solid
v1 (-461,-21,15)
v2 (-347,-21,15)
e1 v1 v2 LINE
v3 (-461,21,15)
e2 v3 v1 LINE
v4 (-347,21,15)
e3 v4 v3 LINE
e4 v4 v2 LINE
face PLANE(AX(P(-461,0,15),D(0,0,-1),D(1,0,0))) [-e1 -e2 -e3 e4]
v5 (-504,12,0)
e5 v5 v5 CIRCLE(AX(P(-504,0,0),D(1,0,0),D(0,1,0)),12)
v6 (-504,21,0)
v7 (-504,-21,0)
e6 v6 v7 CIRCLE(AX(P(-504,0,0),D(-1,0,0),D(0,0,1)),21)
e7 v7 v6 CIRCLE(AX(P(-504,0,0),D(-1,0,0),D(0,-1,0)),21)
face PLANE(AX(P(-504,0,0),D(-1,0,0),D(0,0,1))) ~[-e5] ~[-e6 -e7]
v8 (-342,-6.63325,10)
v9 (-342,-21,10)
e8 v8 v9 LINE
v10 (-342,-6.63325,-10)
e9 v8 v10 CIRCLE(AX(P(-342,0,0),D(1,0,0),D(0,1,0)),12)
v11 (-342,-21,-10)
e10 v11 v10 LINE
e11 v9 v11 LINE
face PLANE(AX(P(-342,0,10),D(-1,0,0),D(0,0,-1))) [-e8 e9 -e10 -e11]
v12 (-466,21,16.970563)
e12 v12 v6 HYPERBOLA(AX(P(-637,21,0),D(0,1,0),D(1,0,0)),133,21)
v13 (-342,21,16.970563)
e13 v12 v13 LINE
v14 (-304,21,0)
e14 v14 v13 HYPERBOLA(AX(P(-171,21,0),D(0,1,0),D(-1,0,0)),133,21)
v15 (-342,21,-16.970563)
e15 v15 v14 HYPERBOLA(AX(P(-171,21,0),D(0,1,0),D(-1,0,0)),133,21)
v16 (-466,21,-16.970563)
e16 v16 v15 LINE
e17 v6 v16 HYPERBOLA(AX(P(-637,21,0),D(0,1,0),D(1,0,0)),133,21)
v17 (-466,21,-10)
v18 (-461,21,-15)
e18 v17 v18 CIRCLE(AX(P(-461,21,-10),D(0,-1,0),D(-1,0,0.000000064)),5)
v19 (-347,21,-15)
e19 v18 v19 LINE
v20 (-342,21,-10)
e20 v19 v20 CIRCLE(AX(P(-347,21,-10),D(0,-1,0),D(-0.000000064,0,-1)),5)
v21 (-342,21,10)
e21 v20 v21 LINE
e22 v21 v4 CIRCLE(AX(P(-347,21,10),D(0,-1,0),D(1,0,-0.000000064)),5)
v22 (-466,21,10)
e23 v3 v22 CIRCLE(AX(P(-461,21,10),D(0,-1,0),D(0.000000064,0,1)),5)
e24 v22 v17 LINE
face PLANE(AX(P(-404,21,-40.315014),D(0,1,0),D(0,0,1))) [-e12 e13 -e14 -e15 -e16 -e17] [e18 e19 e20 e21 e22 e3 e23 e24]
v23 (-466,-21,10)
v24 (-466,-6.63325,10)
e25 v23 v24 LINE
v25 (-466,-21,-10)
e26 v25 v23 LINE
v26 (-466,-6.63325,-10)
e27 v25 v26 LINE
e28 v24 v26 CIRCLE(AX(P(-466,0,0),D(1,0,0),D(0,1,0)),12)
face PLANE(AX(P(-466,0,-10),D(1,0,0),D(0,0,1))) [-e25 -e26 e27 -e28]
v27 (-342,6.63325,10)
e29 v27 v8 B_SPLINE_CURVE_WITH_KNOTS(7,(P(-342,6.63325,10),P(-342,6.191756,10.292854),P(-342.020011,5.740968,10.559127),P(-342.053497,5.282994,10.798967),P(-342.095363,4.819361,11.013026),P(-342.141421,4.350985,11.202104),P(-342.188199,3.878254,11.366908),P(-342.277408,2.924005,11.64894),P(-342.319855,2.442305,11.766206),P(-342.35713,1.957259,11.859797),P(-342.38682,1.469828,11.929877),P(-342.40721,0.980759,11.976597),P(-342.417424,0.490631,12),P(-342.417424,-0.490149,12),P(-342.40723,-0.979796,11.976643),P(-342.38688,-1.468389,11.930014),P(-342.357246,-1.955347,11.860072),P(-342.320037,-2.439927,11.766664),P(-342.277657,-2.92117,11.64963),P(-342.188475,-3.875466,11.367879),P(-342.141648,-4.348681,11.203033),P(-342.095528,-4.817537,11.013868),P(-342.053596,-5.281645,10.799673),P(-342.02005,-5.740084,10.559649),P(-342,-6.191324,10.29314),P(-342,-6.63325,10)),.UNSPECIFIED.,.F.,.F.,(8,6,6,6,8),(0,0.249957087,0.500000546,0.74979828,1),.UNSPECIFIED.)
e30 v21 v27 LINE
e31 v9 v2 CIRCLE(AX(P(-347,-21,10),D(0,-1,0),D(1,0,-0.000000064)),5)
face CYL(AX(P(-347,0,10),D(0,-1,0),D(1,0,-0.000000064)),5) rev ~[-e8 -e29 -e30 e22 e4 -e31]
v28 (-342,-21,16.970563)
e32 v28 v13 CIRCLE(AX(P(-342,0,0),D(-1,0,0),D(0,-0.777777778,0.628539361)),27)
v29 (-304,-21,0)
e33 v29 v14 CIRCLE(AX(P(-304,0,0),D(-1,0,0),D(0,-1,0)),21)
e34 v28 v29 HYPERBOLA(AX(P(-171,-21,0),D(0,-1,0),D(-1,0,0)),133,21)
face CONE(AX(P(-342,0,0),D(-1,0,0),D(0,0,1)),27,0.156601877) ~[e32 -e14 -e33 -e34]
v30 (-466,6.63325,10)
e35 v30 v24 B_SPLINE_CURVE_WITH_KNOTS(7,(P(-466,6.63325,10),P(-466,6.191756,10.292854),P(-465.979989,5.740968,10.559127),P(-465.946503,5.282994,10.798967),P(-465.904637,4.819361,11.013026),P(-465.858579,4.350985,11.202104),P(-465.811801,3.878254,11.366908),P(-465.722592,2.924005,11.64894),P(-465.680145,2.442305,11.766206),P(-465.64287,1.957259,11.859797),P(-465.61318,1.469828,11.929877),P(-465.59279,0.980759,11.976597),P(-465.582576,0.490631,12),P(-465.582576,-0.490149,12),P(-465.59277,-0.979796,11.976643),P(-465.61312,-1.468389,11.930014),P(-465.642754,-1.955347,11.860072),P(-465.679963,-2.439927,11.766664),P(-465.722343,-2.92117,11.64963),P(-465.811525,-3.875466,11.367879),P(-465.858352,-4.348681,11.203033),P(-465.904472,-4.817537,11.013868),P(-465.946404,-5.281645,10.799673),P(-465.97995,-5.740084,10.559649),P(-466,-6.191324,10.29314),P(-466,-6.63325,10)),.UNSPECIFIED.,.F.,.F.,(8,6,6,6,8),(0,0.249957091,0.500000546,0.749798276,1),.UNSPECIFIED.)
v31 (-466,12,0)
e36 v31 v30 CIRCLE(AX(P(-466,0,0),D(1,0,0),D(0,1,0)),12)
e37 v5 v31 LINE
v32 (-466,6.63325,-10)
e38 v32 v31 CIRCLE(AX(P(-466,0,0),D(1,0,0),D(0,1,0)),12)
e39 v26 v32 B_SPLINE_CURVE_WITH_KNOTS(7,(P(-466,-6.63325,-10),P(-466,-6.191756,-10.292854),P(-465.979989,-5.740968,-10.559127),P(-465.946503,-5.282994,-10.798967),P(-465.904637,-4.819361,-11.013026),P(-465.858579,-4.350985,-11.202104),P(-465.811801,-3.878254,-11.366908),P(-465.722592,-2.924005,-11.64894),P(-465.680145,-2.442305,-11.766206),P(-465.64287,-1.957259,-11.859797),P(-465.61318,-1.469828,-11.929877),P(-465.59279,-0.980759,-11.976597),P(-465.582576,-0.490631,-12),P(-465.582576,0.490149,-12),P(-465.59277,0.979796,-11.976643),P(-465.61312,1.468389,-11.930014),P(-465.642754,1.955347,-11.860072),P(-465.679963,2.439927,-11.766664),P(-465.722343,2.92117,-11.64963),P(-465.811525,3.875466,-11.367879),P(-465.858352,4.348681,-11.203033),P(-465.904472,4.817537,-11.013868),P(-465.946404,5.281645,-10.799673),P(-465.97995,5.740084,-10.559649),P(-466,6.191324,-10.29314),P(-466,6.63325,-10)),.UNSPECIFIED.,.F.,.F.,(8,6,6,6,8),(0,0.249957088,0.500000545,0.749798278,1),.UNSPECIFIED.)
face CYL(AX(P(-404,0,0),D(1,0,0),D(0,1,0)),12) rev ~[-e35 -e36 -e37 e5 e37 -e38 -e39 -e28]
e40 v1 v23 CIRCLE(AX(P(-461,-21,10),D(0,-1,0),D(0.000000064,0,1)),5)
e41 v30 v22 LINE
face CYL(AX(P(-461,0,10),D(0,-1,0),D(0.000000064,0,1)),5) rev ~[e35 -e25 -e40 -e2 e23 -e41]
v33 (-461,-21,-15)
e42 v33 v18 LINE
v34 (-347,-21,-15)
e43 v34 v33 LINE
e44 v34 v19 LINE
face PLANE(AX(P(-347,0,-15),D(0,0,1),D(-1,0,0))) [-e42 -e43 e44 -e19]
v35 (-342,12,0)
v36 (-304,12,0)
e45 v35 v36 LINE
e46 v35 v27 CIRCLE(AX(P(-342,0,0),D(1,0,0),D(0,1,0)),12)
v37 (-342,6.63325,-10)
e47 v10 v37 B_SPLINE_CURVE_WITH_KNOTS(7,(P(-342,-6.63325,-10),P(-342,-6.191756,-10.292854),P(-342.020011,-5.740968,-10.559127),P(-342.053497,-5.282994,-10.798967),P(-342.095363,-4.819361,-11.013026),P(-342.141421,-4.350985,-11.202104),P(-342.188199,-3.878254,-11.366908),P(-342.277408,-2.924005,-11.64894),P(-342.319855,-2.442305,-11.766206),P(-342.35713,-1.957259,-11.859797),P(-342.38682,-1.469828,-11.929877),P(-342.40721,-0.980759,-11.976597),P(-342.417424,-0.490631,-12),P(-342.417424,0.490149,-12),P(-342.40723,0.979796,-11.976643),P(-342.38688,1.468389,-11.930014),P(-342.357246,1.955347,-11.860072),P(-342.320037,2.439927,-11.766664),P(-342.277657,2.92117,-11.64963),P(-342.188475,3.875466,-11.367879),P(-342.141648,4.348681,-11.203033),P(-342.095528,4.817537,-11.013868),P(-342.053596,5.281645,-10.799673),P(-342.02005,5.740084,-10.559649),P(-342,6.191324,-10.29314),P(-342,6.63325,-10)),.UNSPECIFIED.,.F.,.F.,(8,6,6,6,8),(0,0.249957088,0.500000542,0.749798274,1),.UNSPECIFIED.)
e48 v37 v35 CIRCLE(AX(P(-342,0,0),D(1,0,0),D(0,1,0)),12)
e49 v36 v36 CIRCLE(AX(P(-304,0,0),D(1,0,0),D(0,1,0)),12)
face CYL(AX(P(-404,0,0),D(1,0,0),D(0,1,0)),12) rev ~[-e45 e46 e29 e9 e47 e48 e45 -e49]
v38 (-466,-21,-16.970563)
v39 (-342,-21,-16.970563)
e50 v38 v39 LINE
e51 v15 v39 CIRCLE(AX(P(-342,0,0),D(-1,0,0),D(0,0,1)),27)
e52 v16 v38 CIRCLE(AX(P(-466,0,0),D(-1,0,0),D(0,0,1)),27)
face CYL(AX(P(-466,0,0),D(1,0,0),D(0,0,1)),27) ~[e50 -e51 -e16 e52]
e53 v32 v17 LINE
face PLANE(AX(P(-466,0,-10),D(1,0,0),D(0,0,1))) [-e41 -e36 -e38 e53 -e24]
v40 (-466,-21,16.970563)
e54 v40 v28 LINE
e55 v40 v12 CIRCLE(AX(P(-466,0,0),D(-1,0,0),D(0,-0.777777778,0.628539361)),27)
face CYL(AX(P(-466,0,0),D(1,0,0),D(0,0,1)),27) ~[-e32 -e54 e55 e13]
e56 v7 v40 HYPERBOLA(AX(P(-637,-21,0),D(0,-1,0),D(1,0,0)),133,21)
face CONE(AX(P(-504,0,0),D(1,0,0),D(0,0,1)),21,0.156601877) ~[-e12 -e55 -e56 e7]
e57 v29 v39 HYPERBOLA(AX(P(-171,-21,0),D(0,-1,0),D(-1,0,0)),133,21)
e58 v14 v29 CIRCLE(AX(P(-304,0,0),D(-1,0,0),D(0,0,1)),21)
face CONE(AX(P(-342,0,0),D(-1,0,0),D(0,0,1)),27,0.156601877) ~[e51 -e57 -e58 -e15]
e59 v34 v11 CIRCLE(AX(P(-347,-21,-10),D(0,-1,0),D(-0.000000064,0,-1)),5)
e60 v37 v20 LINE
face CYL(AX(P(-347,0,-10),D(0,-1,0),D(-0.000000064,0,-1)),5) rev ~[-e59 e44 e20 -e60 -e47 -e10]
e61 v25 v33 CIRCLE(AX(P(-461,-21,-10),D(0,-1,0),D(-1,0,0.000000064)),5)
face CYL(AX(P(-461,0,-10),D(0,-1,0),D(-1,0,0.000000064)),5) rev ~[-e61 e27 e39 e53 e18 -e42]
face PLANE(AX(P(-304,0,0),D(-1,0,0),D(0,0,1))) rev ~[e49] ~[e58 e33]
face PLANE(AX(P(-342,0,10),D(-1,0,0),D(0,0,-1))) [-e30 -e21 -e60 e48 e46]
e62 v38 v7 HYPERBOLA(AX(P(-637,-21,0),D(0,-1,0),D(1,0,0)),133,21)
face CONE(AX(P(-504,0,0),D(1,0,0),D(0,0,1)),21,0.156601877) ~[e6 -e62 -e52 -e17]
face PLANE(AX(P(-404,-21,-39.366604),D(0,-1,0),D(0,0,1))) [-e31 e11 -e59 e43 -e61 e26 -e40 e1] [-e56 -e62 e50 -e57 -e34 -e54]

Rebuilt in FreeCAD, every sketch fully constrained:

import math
import FreeCAD as App
import Part
import Sketcher

V = App.Vector
Q = App.Units.Quantity

doc = App.newDocument("Part")
body = doc.addObject("PartDesign::Body", "Body")

# Sketch on YZ plane
sketch1 = body.newObject("Sketcher::SketchObject", "Sketch")
sketch1.AttachmentSupport = (doc.getObject("YZ_Plane"), [""])
sketch1.MapMode = "FlatFace"
sketch1.addGeometry(Part.Circle(V(0, 0, 0), V(0, 0, 1), 12), False)
sketch1.addConstraint(Sketcher.Constraint("Coincident", 0, 3, -1, 1))
sketch1.addConstraint(Sketcher.Constraint("Diameter", 0, Q("24 mm")))
pad1 = body.newObject("PartDesign::Pad", "Pad")
pad1.Profile = sketch1
pad1.Length = 300
pad1.Midplane = True
body2 = doc.addObject("PartDesign::Body", "Body001")

# Sketch on XZ plane
sketch2 = body2.newObject("Sketcher::SketchObject", "Sketch001")
sketch2.AttachmentSupport = (doc.getObject("XZ_Plane001"), [""])
sketch2.MapMode = "FlatFace"
sketch2.addGeometry(Part.LineSegment(V(62, -10, 0), V(62, 10, 0)), False)
sketch2.addGeometry(Part.ArcOfCircle(Part.Circle(V(57, 10, 0), V(0, 0, 1), 5), math.radians(-0.000004), math.radians(90.000004)), False)
sketch2.addGeometry(Part.LineSegment(V(57, 15, 0), V(-57, 15, 0)), False)
sketch2.addGeometry(Part.ArcOfCircle(Part.Circle(V(-57, 10, 0), V(0, 0, 1), 5), math.radians(89.999996), math.radians(180.000004)), False)
sketch2.addGeometry(Part.LineSegment(V(-62, 10, 0), V(-62, -10, 0)), False)
sketch2.addGeometry(Part.ArcOfCircle(Part.Circle(V(-57, -10, 0), V(0, 0, 1), 5), math.radians(179.999996), math.radians(270.000004)), False)
sketch2.addGeometry(Part.LineSegment(V(-57, -15, 0), V(57, -15, 0)), False)
sketch2.addGeometry(Part.ArcOfCircle(Part.Circle(V(57, -10, 0), V(0, 0, 1), 5), math.radians(-90.000004), math.radians(0.000004)), False)
sketch2.addConstraint(Sketcher.Constraint("Tangent", 0, 2, 1, 1))
sketch2.addConstraint(Sketcher.Constraint("Tangent", 1, 2, 2, 1))
sketch2.addConstraint(Sketcher.Constraint("Tangent", 2, 2, 3, 1))
sketch2.addConstraint(Sketcher.Constraint("Tangent", 3, 2, 4, 1))
sketch2.addConstraint(Sketcher.Constraint("Tangent", 4, 2, 5, 1))
sketch2.addConstraint(Sketcher.Constraint("Tangent", 5, 2, 6, 1))
sketch2.addConstraint(Sketcher.Constraint("Tangent", 6, 2, 7, 1))
sketch2.addConstraint(Sketcher.Constraint("Tangent", 7, 2, 0, 1))
sketch2.addConstraint(Sketcher.Constraint("Vertical", 0))
sketch2.addConstraint(Sketcher.Constraint("Horizontal", 2))
sketch2.addConstraint(Sketcher.Constraint("Vertical", 4))
sketch2.addConstraint(Sketcher.Constraint("Horizontal", 6))
sketch2.addConstraint(Sketcher.Constraint("Equal", 1, 3))
sketch2.addConstraint(Sketcher.Constraint("Equal", 3, 5))
sketch2.addConstraint(Sketcher.Constraint("Equal", 5, 7))
sketch2.addConstraint(Sketcher.Constraint("Symmetric", 1, 3, 5, 3, -1, 1))
sketch2.addConstraint(Sketcher.Constraint("Radius", 1, Q("5 mm")))
sketch2.addConstraint(Sketcher.Constraint("DistanceX", 2, 2, 2, 1, Q("114 mm")))
sketch2.addConstraint(Sketcher.Constraint("DistanceY", 0, 1, 0, 2, Q("20 mm")))
pad2 = body2.newObject("PartDesign::Pad", "Pad001")
pad2.Profile = sketch2
pad2.Length = 60
pad2.Midplane = True
body3 = doc.addObject("PartDesign::Body", "Body002")
body3.AllowCompound = True

# Sketch on YZ plane
sketch3 = body3.newObject("Sketcher::SketchObject", "Sketch002")
sketch3.AttachmentSupport = (doc.getObject("YZ_Plane002"), [""])
sketch3.MapMode = "FlatFace"
sketch3.addGeometry(Part.LineSegment(V(-36, 39.684986, 0), V(-36, -39.366604, 0)), False)
sketch3.addGeometry(Part.LineSegment(V(-36, -39.366604, 0), V(-21, -39.366604, 0)), False)
sketch3.addGeometry(Part.LineSegment(V(-21, -39.366604, 0), V(-21, 39.684986, 0)), False)
sketch3.addGeometry(Part.LineSegment(V(-21, 39.684986, 0), V(-36, 39.684986, 0)), False)
sketch3.addGeometry(Part.LineSegment(V(21, 39.684986, 0), V(21, -40.315014, 0)), False)
sketch3.addGeometry(Part.LineSegment(V(21, -40.315014, 0), V(36, -40.315014, 0)), False)
sketch3.addGeometry(Part.LineSegment(V(36, -40.315014, 0), V(36, 39.684986, 0)), False)
sketch3.addGeometry(Part.LineSegment(V(36, 39.684986, 0), V(21, 39.684986, 0)), False)
sketch3.addConstraint(Sketcher.Constraint("Coincident", 0, 2, 1, 1))
sketch3.addConstraint(Sketcher.Constraint("Coincident", 1, 2, 2, 1))
sketch3.addConstraint(Sketcher.Constraint("Coincident", 2, 2, 3, 1))
sketch3.addConstraint(Sketcher.Constraint("Coincident", 3, 2, 0, 1))
sketch3.addConstraint(Sketcher.Constraint("Coincident", 4, 2, 5, 1))
sketch3.addConstraint(Sketcher.Constraint("Coincident", 5, 2, 6, 1))
sketch3.addConstraint(Sketcher.Constraint("Coincident", 6, 2, 7, 1))
sketch3.addConstraint(Sketcher.Constraint("Coincident", 7, 2, 4, 1))
sketch3.addConstraint(Sketcher.Constraint("Vertical", 0))
sketch3.addConstraint(Sketcher.Constraint("Horizontal", 1))
sketch3.addConstraint(Sketcher.Constraint("Vertical", 2))
sketch3.addConstraint(Sketcher.Constraint("Horizontal", 3))
sketch3.addConstraint(Sketcher.Constraint("Vertical", 4))
sketch3.addConstraint(Sketcher.Constraint("Horizontal", 5))
sketch3.addConstraint(Sketcher.Constraint("Vertical", 6))
sketch3.addConstraint(Sketcher.Constraint("Horizontal", 7))
sketch3.addConstraint(Sketcher.Constraint("Symmetric", 3, 2, 6, 2, -2))
sketch3.addConstraint(Sketcher.Constraint("Equal", 3, 5))
sketch3.addConstraint(Sketcher.Constraint("DistanceX", 1, 1, 1, 2, Q("15 mm")))
sketch3.addConstraint(Sketcher.Constraint("DistanceY", 4, 2, 4, 1, Q("80 mm")))
sketch3.addConstraint(Sketcher.Constraint("DistanceX", 0, 2, -1, 1, Q("36 mm")))
sketch3.addConstraint(Sketcher.Constraint("DistanceY", 0, 2, 0, 1, Q("79.05159 mm")))
sketch3.addConstraint(Sketcher.Constraint("DistanceY", 0, 2, -1, 1, Q("39.366604 mm")))
pad3 = body3.newObject("PartDesign::Pad", "Pad002")
pad3.Profile = sketch3
pad3.Length = 300
pad3.Midplane = True
body4 = doc.addObject("PartDesign::Body", "Body003")

# Sketch on XZ plane
sketch4 = body4.newObject("Sketcher::SketchObject", "Sketch003")
sketch4.AttachmentSupport = (doc.getObject("XZ_Plane003"), [""])
sketch4.MapMode = "FlatFace"
sketch4.addGeometry(Part.LineSegment(V(-100, 21, 0), V(-100, 0, 0)), False)
sketch4.addGeometry(Part.LineSegment(V(-100, 0, 0), V(100, 0, 0)), False)
sketch4.addGeometry(Part.LineSegment(V(100, 0, 0), V(100, 21, 0)), False)
sketch4.addGeometry(Part.LineSegment(V(100, 21, 0), V(62, 27, 0)), False)
sketch4.addGeometry(Part.LineSegment(V(62, 27, 0), V(-62, 27, 0)), False)
sketch4.addGeometry(Part.LineSegment(V(-62, 27, 0), V(-100, 21, 0)), False)
sketch4.addConstraint(Sketcher.Constraint("Coincident", 0, 2, 1, 1))
sketch4.addConstraint(Sketcher.Constraint("Coincident", 1, 2, 2, 1))
sketch4.addConstraint(Sketcher.Constraint("Coincident", 2, 2, 3, 1))
sketch4.addConstraint(Sketcher.Constraint("Coincident", 3, 2, 4, 1))
sketch4.addConstraint(Sketcher.Constraint("Coincident", 4, 2, 5, 1))
sketch4.addConstraint(Sketcher.Constraint("Coincident", 5, 2, 0, 1))
sketch4.addConstraint(Sketcher.Constraint("Vertical", 0))
sketch4.addConstraint(Sketcher.Constraint("Horizontal", 1))
sketch4.addConstraint(Sketcher.Constraint("Vertical", 2))
sketch4.addConstraint(Sketcher.Constraint("Horizontal", 4))
sketch4.addConstraint(Sketcher.Constraint("Symmetric", 0, 2, 1, 2, -1, 1))
sketch4.addConstraint(Sketcher.Constraint("Horizontal", 2, 2, 5, 2))
sketch4.addConstraint(Sketcher.Constraint("Equal", 3, 5))
sketch4.addConstraint(Sketcher.Constraint("DistanceX", 1, 1, 1, 2, Q("200 mm")))
sketch4.addConstraint(Sketcher.Constraint("DistanceX", 4, 2, 4, 1, Q("124 mm")))
sketch4.addConstraint(Sketcher.Constraint("DistanceY", 0, 2, 0, 1, Q("21 mm")))
sketch4.addConstraint(Sketcher.Constraint("DistanceY", -1, 1, 3, 2, Q("27 mm")))
revolution = body4.newObject("PartDesign::Revolution", "Revolution")
revolution.Profile = sketch4
revolution.ReferenceAxis = (sketch4, ["H_Axis"])
revolution.Angle = 360
doc.recompute()

boolean = body4.newObject("PartDesign::Boolean", "Boolean")
boolean.Type = "Cut"
boolean.addObjects([body3])
doc.recompute()

boolean2 = body4.newObject("PartDesign::Boolean", "Boolean001")
boolean2.Type = "Cut"
boolean2.addObjects([body2])
doc.recompute()

boolean3 = body4.newObject("PartDesign::Boolean", "Boolean002")
boolean3.Type = "Cut"
boolean3.addObjects([body])
body5 = doc.addObject("PartDesign::Body", "Body004")
doc.recompute()

body4.Placement = App.Placement(V(-404, 0, 0), App.Rotation(V(0, 0, 1), 0))
boolean4 = body5.newObject("PartDesign::Boolean", "Boolean003")
boolean4.Type = "Fuse"
boolean4.addObjects([body4])

doc.recompute()
